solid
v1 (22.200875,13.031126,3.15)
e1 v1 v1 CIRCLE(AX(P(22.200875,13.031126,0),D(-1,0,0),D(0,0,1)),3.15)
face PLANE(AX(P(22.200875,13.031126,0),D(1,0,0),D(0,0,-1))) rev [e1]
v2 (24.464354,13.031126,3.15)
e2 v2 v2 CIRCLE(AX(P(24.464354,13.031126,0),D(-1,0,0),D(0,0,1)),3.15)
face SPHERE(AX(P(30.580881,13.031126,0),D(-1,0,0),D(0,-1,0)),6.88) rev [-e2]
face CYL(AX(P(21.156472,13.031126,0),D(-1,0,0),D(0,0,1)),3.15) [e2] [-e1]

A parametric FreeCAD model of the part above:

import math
import FreeCAD as App
import Part
import Sketcher
from FreeCAD import Vector
Q = App.Units.Quantity

doc = App.newDocument("Part")
body = doc.addObject("PartDesign::Body", "Body")

sketch1 = body.newObject("Sketcher::SketchObject", "Sketch")
sketch1.AttachmentSupport = (doc.getObject("XY_Plane"), [""])
sketch1.MapMode = "FlatFace"
sketch1.addGeometry([
    Part.LineSegment(Vector(22.2, 16.2, 0), Vector(22.2, 13, 0)),
    Part.LineSegment(Vector(22.2, 13, 0), Vector(23.7, 13, 0)),
    Part.ArcOfCircle(Part.Circle(Vector(30.6, 13, 0), Vector(0, 0, 1), 6.9), math.radians(153), math.radians(180)),
    Part.LineSegment(Vector(24.5, 16.2, 0), Vector(22.2, 16.2, 0)),
], False)
sketch1.addGeometry(Part.LineSegment(Vector(22.2, 13, 0), Vector(30.6, 13, 0)), True)
sketch1.addConstraint([
    Sketcher.Constraint("Coincident", 0, 2, 1, 1),
    Sketcher.Constraint("Coincident", 1, 2, 2, 2),
    Sketcher.Constraint("Coincident", 2, 1, 3, 1),
    Sketcher.Constraint("Coincident", 3, 2, 0, 1),
    Sketcher.Constraint("Vertical", 0),
    Sketcher.Constraint("Horizontal", 1),
    Sketcher.Constraint("Horizontal", 3),
    Sketcher.Constraint("Horizontal", 4),
    Sketcher.Constraint("Coincident", 4, 1, 0, 2),
    Sketcher.Constraint("Coincident", 4, 2, 2, 3),
    Sketcher.Constraint("Radius", 2, Q("6.88 mm")),
    Sketcher.Constraint("DistanceY", 0, 2, 0, 1, Q("3.15 mm")),
    Sketcher.Constraint("DistanceX", 3, 2, 3, 1, Q("2.263478 mm")),
    Sketcher.Constraint("DistanceX", -1, 1, 2, 3, Q("30.580881 mm")),
    Sketcher.Constraint("DistanceY", -1, 1, 2, 3, Q("13.031126 mm")),
])
revolution = body.newObject("PartDesign::Revolution", "Revolution")
revolution.Profile = sketch1
revolution.ReferenceAxis = (sketch1, ["Axis0"])
revolution.Angle = 360

doc.recompute()
